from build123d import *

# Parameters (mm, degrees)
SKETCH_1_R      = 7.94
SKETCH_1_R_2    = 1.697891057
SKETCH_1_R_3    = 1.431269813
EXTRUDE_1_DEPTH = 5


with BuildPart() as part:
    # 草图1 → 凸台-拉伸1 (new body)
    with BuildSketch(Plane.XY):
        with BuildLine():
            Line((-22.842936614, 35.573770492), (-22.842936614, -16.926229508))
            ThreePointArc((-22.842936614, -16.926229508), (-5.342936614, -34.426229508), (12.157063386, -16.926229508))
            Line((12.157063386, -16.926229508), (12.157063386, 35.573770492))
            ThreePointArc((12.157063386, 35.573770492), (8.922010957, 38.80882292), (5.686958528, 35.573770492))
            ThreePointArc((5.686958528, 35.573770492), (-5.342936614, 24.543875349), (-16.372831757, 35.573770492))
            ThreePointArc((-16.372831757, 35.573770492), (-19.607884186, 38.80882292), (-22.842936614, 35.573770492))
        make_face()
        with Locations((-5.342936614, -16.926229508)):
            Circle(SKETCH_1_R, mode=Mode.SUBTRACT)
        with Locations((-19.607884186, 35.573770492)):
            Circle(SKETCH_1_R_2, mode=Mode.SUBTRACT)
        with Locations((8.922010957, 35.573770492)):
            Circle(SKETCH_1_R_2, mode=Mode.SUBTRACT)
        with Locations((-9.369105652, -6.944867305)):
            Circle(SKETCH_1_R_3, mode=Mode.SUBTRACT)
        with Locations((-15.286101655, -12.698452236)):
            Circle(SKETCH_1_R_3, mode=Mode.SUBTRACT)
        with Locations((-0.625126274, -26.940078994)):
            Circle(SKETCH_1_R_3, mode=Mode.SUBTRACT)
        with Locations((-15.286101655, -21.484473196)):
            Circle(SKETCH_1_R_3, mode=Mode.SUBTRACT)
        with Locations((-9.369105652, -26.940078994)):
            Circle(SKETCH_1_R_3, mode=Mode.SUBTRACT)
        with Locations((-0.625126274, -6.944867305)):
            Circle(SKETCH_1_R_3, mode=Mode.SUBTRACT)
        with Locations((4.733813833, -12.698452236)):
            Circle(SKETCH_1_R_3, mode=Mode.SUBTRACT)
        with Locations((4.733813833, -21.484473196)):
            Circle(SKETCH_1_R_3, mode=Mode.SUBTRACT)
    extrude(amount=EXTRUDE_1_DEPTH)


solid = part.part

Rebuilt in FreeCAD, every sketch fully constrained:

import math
import FreeCAD as App
import Part
import Sketcher
from FreeCAD import Vector

doc = App.newDocument("Part")
body = doc.addObject("PartDesign::Body", "Body")

# Sketch on XY plane
sketch1 = body.newObject("Sketcher::SketchObject", "Sketch")
sketch1.AttachmentSupport = (doc.getObject("XY_Plane"), [""])
sketch1.MapMode = "FlatFace"
sketch1.addGeometry(Part.LineSegment(Vector(-22.842937, 35.57377, 0), Vector(-22.842937, -16.92623, 0)), False)
sketch1.addGeometry(Part.ArcOfCircle(Part.Circle(Vector(-5.342937, -16.92623, 0), Vector(0, 0, 1), 17.5), math.radians(180), math.radians(360)), False)
sketch1.addGeometry(Part.LineSegment(Vector(12.157063, -16.92623, 0), Vector(12.157063, 35.57377, 0)), False)
sketch1.addGeometry(Part.ArcOfCircle(Part.Circle(Vector(8.922011, 35.57377, 0), Vector(0, 0, 1), 3.235052), math.radians(0), math.radians(180)), False)
sketch1.addGeometry(Part.ArcOfCircle(Part.Circle(Vector(-5.342937, 35.57377, 0), Vector(0, 0, 1), 11.029895), math.radians(180), math.radians(360)), False)
sketch1.addGeometry(Part.ArcOfCircle(Part.Circle(Vector(-19.607884, 35.57377, 0), Vector(0, 0, 1), 3.235052), math.radians(0), math.radians(180)), False)
sketch1.addGeometry(Part.Circle(Vector(-15.286102, -21.484473, 0), Vector(0, 0, 1), 1.43127), False)
sketch1.addGeometry(Part.Circle(Vector(-15.286102, -12.698452, 0), Vector(0, 0, 1), 1.43127), False)
sketch1.addGeometry(Part.Circle(Vector(-9.369106, -26.940079, 0), Vector(0, 0, 1), 1.43127), False)
sketch1.addGeometry(Part.Circle(Vector(-9.369106, -6.944867, 0), Vector(0, 0, 1), 1.43127), False)
sketch1.addGeometry(Part.Circle(Vector(-0.625126, -26.940079, 0), Vector(0, 0, 1), 1.43127), False)
sketch1.addGeometry(Part.Circle(Vector(-5.342937, -16.92623, 0), Vector(0, 0, 1), 7.94), False)
sketch1.addGeometry(Part.Circle(Vector(4.733814, -21.484473, 0), Vector(0, 0, 1), 1.43127), False)
sketch1.addGeometry(Part.Circle(Vector(4.733814, -12.698452, 0), Vector(0, 0, 1), 1.43127), False)
sketch1.addGeometry(Part.Circle(Vector(-0.625126, -6.944867, 0), Vector(0, 0, 1), 1.43127), False)
sketch1.addGeometry(Part.Circle(Vector(-19.607884, 35.57377, 0), Vector(0, 0, 1), 1.697891), False)
sketch1.addGeometry(Part.Circle(Vector(8.922011, 35.57377, 0), Vector(0, 0, 1), 1.697891), False)
sketch1.addConstraint(Sketcher.Constraint("Tangent", 0, 2, 1, 1))
sketch1.addConstraint(Sketcher.Constraint("Tangent", 1, 2, 2, 1))
sketch1.addConstraint(Sketcher.Constraint("Tangent", 2, 2, 3, 1))
sketch1.addConstraint(Sketcher.Constraint("Tangent", 3, 2, 4, 2))
sketch1.addConstraint(Sketcher.Constraint("Tangent", 4, 1, 5, 1))
sketch1.addConstraint(Sketcher.Constraint("Tangent", 5, 2, 0, 1))
sketch1.addConstraint(Sketcher.Constraint("Vertical", 0))
sketch1.addConstraint(Sketcher.Constraint("Vertical", 2))
sketch1.addConstraint(Sketcher.Constraint("Coincident", 11, 3, 1, 3))
sketch1.addConstraint(Sketcher.Constraint("Coincident", 15, 3, 5, 3))
sketch1.addConstraint(Sketcher.Constraint("Coincident", 16, 3, 3, 3))
sketch1.addConstraint(Sketcher.Constraint("Equal", 3, 5))
sketch1.addConstraint(Sketcher.Constraint("Equal", 6, 7))
sketch1.addConstraint(Sketcher.Constraint("Equal", 7, 8))
sketch1.addConstraint(Sketcher.Constraint("Equal", 8, 9))
sketch1.addConstraint(Sketcher.Constraint("Equal", 9, 10))
sketch1.addConstraint(Sketcher.Constraint("Equal", 10, 12))
sketch1.addConstraint(Sketcher.Constraint("Equal", 12, 13))
sketch1.addConstraint(Sketcher.Constraint("Equal", 13, 14))
sketch1.addConstraint(Sketcher.Constraint("Equal", 15, 16))
sketch1.addConstraint(Sketcher.Constraint("Horizontal", 3, 3, 4, 3))
sketch1.addConstraint(Sketcher.Constraint("Horizontal", 4, 3, 5, 3))
sketch1.addConstraint(Sketcher.Constraint("Horizontal", 8, 3, 10, 3))
sketch1.addConstraint(Sketcher.Constraint("Horizontal", 6, 3, 12, 3))
sketch1.addConstraint(Sketcher.Constraint("Horizontal", 7, 3, 13, 3))
sketch1.addConstraint(Sketcher.Constraint("Horizontal", 9, 3, 14, 3))
sketch1.addConstraint(Sketcher.Constraint("Vertical", 6, 3, 7, 3))
sketch1.addConstraint(Sketcher.Constraint("Vertical", 8, 3, 9, 3))
sketch1.addConstraint(Sketcher.Constraint("Vertical", 12, 3, 13, 3))
sketch1.addConstraint(Sketcher.Constraint("Vertical", 10, 3, 14, 3))
sketch1.addConstraint(Sketcher.Constraint("Radius", 1, 17.5))
sketch1.addConstraint(Sketcher.Constraint("Diameter", 11, 15.88))
sketch1.addConstraint(Sketcher.Constraint("DistanceY", 0, 2, 0, 1, 52.5))
sketch1.addConstraint(Sketcher.Constraint("Diameter", 6, 2.86254))
sketch1.addConstraint(Sketcher.Constraint("Diameter", 15, 3.395782))
sketch1.addConstraint(Sketcher.Constraint("Radius", 3, 3.235052))
sketch1.addConstraint(Sketcher.Constraint("DistanceX", 6, 3, -1, 1, 15.286102))
sketch1.addConstraint(Sketcher.Constraint("DistanceY", 1, 3, -1, 1, 16.92623))
sketch1.addConstraint(Sketcher.Constraint("DistanceX", -1, 1, 3, 3, 8.922011))
sketch1.addConstraint(Sketcher.Constraint("DistanceY", 8, 3, -1, 1, 26.940079))
sketch1.addConstraint(Sketcher.Constraint("DistanceY", 6, 3, 7, 3, 8.786021))
sketch1.addConstraint(Sketcher.Constraint("DistanceX", 8, 3, 1, 3, 4.026169))
sketch1.addConstraint(Sketcher.Constraint("DistanceY", 8, 3, 9, 3, 19.995212))
sketch1.addConstraint(Sketcher.Constraint("DistanceX", 8, 3, 10, 3, 8.743979))
sketch1.addConstraint(Sketcher.Constraint("DistanceX", 10, 3, 12, 3, 5.35894))
sketch1.addConstraint(Sketcher.Constraint("DistanceY", 6, 3, -1, 1, 21.484473))
pad1 = body.newObject("PartDesign::Pad", "Pad")
pad1.Profile = sketch1
pad1.Length = 5

doc.recompute()
